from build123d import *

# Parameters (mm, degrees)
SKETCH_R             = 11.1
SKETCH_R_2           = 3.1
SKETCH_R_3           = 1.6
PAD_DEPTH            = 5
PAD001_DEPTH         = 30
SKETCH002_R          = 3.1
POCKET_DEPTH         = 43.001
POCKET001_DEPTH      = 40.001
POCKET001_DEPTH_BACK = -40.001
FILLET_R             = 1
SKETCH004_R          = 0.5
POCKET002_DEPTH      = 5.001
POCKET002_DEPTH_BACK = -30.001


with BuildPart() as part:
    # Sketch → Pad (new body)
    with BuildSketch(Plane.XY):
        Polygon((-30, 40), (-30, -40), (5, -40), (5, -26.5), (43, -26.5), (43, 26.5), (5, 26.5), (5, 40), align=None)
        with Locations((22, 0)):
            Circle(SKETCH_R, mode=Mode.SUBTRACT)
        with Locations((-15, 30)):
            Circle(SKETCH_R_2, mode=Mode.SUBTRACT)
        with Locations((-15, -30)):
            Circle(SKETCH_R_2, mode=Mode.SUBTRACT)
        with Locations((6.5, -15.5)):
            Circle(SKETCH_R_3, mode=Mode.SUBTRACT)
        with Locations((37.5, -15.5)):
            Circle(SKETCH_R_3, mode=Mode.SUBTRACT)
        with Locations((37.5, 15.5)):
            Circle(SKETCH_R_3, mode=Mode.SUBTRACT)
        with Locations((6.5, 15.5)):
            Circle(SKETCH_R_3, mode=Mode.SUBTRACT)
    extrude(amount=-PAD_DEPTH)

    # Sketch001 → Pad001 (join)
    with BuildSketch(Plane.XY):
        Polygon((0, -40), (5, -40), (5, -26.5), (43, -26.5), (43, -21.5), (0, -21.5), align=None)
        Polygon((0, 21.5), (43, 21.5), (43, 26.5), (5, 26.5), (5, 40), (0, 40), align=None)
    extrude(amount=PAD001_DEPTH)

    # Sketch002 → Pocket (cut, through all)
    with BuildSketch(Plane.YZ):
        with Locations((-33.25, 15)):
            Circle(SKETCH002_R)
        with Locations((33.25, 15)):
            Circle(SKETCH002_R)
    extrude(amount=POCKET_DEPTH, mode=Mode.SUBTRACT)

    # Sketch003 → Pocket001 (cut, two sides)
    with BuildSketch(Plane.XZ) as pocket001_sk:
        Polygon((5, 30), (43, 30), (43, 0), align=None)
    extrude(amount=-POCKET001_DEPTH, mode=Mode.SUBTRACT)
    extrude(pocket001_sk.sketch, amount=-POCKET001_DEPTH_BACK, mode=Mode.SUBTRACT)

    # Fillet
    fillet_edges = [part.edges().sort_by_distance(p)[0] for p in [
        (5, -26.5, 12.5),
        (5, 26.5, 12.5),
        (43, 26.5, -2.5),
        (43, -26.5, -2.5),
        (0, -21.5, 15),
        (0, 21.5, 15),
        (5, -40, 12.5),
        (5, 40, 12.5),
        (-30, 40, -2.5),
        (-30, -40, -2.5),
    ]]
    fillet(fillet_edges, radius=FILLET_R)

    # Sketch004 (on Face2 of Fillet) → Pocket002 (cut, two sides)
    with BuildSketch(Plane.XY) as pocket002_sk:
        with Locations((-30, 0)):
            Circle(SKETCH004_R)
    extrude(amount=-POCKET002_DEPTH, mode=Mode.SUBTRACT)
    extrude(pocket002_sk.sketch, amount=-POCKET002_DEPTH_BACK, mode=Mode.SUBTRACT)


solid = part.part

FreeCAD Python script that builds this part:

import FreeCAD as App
import Part
import Sketcher
Q = App.Units.Quantity


def edges_at(feature, points):
    """Names of the edges that pass closest to the given points."""
    edges = feature.Shape.Edges
    near = lambda p: min(range(len(edges)), key=lambda i: edges[i].distToShape(Part.Vertex(*p))[0])
    return sorted({f"Edge{near(p) + 1}" for p in points})


def add_polygon(sketch, points):
    """Adds a closed chain of lines whose ends are joined by coincident constraints."""
    first, n = sketch.GeometryCount, len(points)
    for a, b in zip(points, points[1:] + points[:1]):
        sketch.addGeometry(Part.LineSegment(App.Vector(*a, 0), App.Vector(*b, 0)), False)
    for i in range(n):
        sketch.addConstraint(Sketcher.Constraint("Coincident", first + i, 2, first + (i + 1) % n, 1))

doc = App.newDocument("Part")
params = doc.addObject("Spreadsheet::Sheet", "Params")
for row, (alias, value) in enumerate([
    ("sketch1_diameter", "6.2 mm"),
    ("sketch1_diameter2", "3.2 mm"),
    ("sketch1_diameter3", "22.2 mm"),
    ("sketch1_width", "35 mm"),
    ("sketch1_width2", "38 mm"),
    ("pad1_length", "5 mm"),
    ("sketch2_width", "5 mm"),
    ("sketch2_width2", "38 mm"),
    ("sketch2_height", "13.5 mm"),
    ("pad2_length", "30 mm"),
    ("sketch3_diameter", "6.2 mm"),
    ("sketch4_width", "38 mm"),
    ("sketch4_height", "30 mm"),
    ("fillet_radius", "1 mm"),
    ("sketch5_diameter", "1 mm"),
], start=1):
    params.set(f"A{row}", alias)
    params.set(f"B{row}", "=" + value)
    params.setAlias(f"B{row}", alias)

body = doc.addObject("PartDesign::Body", "Body")

sketch1 = body.newObject("Sketcher::SketchObject", "Sketch")
sketch1.AttachmentSupport = (doc.getObject("XY_Plane"), [""])
sketch1.MapMode = "FlatFace"
add_polygon(sketch1, [(-30, 40), (-30, -40), (5, -40), (5, -26.5), (43, -26.5), (43, 26.5), (5, 26.5), (5, 40)])
sketch1.addGeometry(Part.Circle(App.Vector(-15, -30, 0), App.Vector(0, 0, 1), 3.1), False)
sketch1.addGeometry(Part.Circle(App.Vector(6.5, -15.5, 0), App.Vector(0, 0, 1), 1.6), False)
sketch1.addGeometry(Part.Circle(App.Vector(37.5, -15.5, 0), App.Vector(0, 0, 1), 1.6), False)
sketch1.addGeometry(Part.Circle(App.Vector(6.5, 15.5, 0), App.Vector(0, 0, 1), 1.6), False)
sketch1.addGeometry(Part.Circle(App.Vector(-15, 30, 0), App.Vector(0, 0, 1), 3.1), False)
sketch1.addGeometry(Part.Circle(App.Vector(22, 0, 0), App.Vector(0, 0, 1), 11.1), False)
sketch1.addGeometry(Part.Circle(App.Vector(37.5, 15.5, 0), App.Vector(0, 0, 1), 1.6), False)
sketch1.addConstraint([
    Sketcher.Constraint("Vertical", 0),
    Sketcher.Constraint("Horizontal", 1),
    Sketcher.Constraint("Vertical", 2),
    Sketcher.Constraint("Horizontal", 3),
    Sketcher.Constraint("Vertical", 4),
    Sketcher.Constraint("Horizontal", 5),
    Sketcher.Constraint("Vertical", 6),
    Sketcher.Constraint("Horizontal", 7),
    Sketcher.Constraint("Equal", 9, 10),
    Sketcher.Constraint("Equal", 10, 11),
    Sketcher.Constraint("Equal", 8, 12),
    Sketcher.Constraint("Equal", 11, 14),
    Sketcher.Constraint("Symmetric", 9, 3, 11, 3, -1),
    Sketcher.Constraint("Symmetric", 8, 3, 12, 3, -1),
    Sketcher.Constraint("Symmetric", 10, 3, 14, 3, -1),
    Sketcher.Constraint("Symmetric", 2, 2, 5, 2, -1),
    Sketcher.Constraint("PointOnObject", 13, 3, -1),
    Sketcher.Constraint("Horizontal", 9, 3, 10, 3),
    Sketcher.Constraint("Equal", 2, 6),
    Sketcher.Constraint("Diameter", 8, Q("6.2 mm")),
    Sketcher.Constraint("Diameter", 9, Q("3.2 mm")),
    Sketcher.Constraint("Diameter", 13, Q("22.2 mm")),
    Sketcher.Constraint("DistanceX", 1, 1, 1, 2, Q("35 mm")),
    Sketcher.Constraint("DistanceX", 3, 1, 3, 2, Q("38 mm")),
    Sketcher.Constraint("DistanceY", 0, 2, 0, 1, Q("80 mm")),
    Sketcher.Constraint("DistanceY", 4, 1, 4, 2, Q("53 mm")),
    Sketcher.Constraint("DistanceX", 8, 3, -1, 1, Q("15 mm")),
    Sketcher.Constraint("DistanceY", 8, 3, -1, 1, Q("30 mm")),
    Sketcher.Constraint("DistanceX", -1, 1, 13, 3, Q("22 mm")),
    Sketcher.Constraint("DistanceX", 0, 2, -1, 1, Q("30 mm")),
    Sketcher.Constraint("DistanceX", 9, 3, 10, 3, Q("31 mm")),
    Sketcher.Constraint("DistanceY", 9, 3, 11, 3, Q("31 mm")),
    Sketcher.Constraint("DistanceX", -1, 1, 9, 3, Q("6.5 mm")),
])
sketch1.setExpression("Constraints[27]", "Params.sketch1_diameter")
sketch1.setExpression("Constraints[28]", "Params.sketch1_diameter2")
sketch1.setExpression("Constraints[29]", "Params.sketch1_diameter3")
sketch1.setExpression("Constraints[30]", "Params.sketch1_width")
sketch1.setExpression("Constraints[31]", "Params.sketch1_width2")
pad1 = body.newObject("PartDesign::Pad", "Pad")
pad1.Profile = sketch1
pad1.setExpression("Length", "Params.pad1_length")
pad1.Reversed = True

sketch2 = body.newObject("Sketcher::SketchObject", "Sketch001")
sketch2.AttachmentSupport = (doc.getObject("XY_Plane"), [""])
sketch2.MapMode = "FlatFace"
add_polygon(sketch2, [(0, -40), (5, -40), (5, -26), (43, -26), (43, -22), (0, -22)])
add_polygon(sketch2, [(0, 22), (43, 22), (43, 26), (5, 26), (5, 40), (0, 40)])
sketch2.addConstraint([
    Sketcher.Constraint("Horizontal", 0),
    Sketcher.Constraint("Vertical", 1),
    Sketcher.Constraint("Horizontal", 2),
    Sketcher.Constraint("Vertical", 3),
    Sketcher.Constraint("Horizontal", 4),
    Sketcher.Constraint("Vertical", 5),
    Sketcher.Constraint("Horizontal", 6),
    Sketcher.Constraint("Vertical", 7),
    Sketcher.Constraint("Horizontal", 8),
    Sketcher.Constraint("Vertical", 9),
    Sketcher.Constraint("Horizontal", 10),
    Sketcher.Constraint("Vertical", 11),
    Sketcher.Constraint("Symmetric", 5, 2, 10, 2, -1, 1),
    Sketcher.Constraint("Symmetric", 3, 2, 6, 2, -1),
    Sketcher.Constraint("Symmetric", 1, 2, 8, 2, -1),
    Sketcher.Constraint("PointOnObject", 4, 2, -2),
    Sketcher.Constraint("Equal", 10, 3),
    Sketcher.Constraint("DistanceX", 0, 1, 0, 2, Q("5 mm")),
    Sketcher.Constraint("DistanceX", 2, 1, 2, 2, Q("38 mm")),
    Sketcher.Constraint("DistanceY", 1, 1, 1, 2, Q("13.5 mm")),
    Sketcher.Constraint("DistanceY", 0, 2, -1, 1, Q("40 mm")),
])
sketch2.setExpression("Constraints[29]", "Params.sketch2_width")
sketch2.setExpression("Constraints[30]", "Params.sketch2_width2")
sketch2.setExpression("Constraints[31]", "Params.sketch2_height")
pad2 = body.newObject("PartDesign::Pad", "Pad001")
pad2.Profile = sketch2
pad2.setExpression("Length", "Params.pad2_length")

sketch3 = body.newObject("Sketcher::SketchObject", "Sketch002")
sketch3.AttachmentSupport = (doc.getObject("YZ_Plane"), [""])
sketch3.MapMode = "FlatFace"
sketch3.addGeometry([
    Part.Circle(App.Vector(-33.2, 15, 0), App.Vector(0, 0, 1), 3.1),
    Part.Circle(App.Vector(33.2, 15, 0), App.Vector(0, 0, 1), 3.1),
], False)
sketch3.addConstraint([
    Sketcher.Constraint("Equal", 0, 1),
    Sketcher.Constraint("Symmetric", 0, 3, 1, 3, -2),
    Sketcher.Constraint("Diameter", 0, Q("6.2 mm")),
    Sketcher.Constraint("DistanceY", -1, 1, 0, 3, Q("15 mm")),
    Sketcher.Constraint("DistanceX", 0, 3, 1, 3, Q("66.5 mm")),
])
sketch3.setExpression("Constraints[2]", "Params.sketch3_diameter")
pocket1 = body.newObject("PartDesign::Pocket", "Pocket")
pocket1.Profile = sketch3
pocket1.Type = "ThroughAll"
pocket1.Reversed = True

sketch4 = body.newObject("Sketcher::SketchObject", "Sketch003")
sketch4.AttachmentSupport = (doc.getObject("XZ_Plane"), [""])
sketch4.MapMode = "FlatFace"
add_polygon(sketch4, [(43, 30), (5, 30), (43, 0)])
sketch4.addConstraint([
    Sketcher.Constraint("Horizontal", 0),
    Sketcher.Constraint("Vertical", 2),
    Sketcher.Constraint("PointOnObject", 1, 2, -1),
    Sketcher.Constraint("DistanceX", 0, 2, 0, 1, Q("38 mm")),
    Sketcher.Constraint("DistanceY", 2, 1, 2, 2, Q("30 mm")),
    Sketcher.Constraint("DistanceX", -1, 1, 0, 2, Q("5 mm")),
])
sketch4.setExpression("Constraints[6]", "Params.sketch4_width")
sketch4.setExpression("Constraints[7]", "Params.sketch4_height")
pocket2 = body.newObject("PartDesign::Pocket", "Pocket001")
pocket2.Profile = sketch4
pocket2.Type = "ThroughAll"
pocket2.Midplane = True
doc.recompute()

fillet = body.newObject("PartDesign::Fillet", "Fillet")
fillet.Base = (pocket2, edges_at(pocket2, [
    (5, -26.5, 12.5),
    (5, 26.5, 12.5),
    (43, 26.5, -2.5),
    (43, -26.5, -2.5),
    (0, -21.5, 15),
    (0, 21.5, 15),
    (5, -40, 12.5),
    (5, 40, 12.5),
    (-30, 40, -2.5),
    (-30, -40, -2.5),
]))
fillet.setExpression("Radius", "Params.fillet_radius")

sketch5 = body.newObject("Sketcher::SketchObject", "Sketch004")
sketch5.AttachmentSupport = (doc.getObject("XY_Plane"), [""])
sketch5.MapMode = "FlatFace"
sketch5.addGeometry(Part.Circle(App.Vector(-30, 0, 0), App.Vector(0, 0, 1), 0.5), False)
sketch5.addConstraint([
    Sketcher.Constraint("PointOnObject", 0, 3, -1),
    Sketcher.Constraint("Diameter", 0, Q("1 mm")),
    Sketcher.Constraint("DistanceX", 0, 3, -1, 1, Q("30 mm")),
])
sketch5.setExpression("Constraints[1]", "Params.sketch5_diameter")
pocket3 = body.newObject("PartDesign::Pocket", "Pocket002")
pocket3.Profile = sketch5
pocket3.Type = "ThroughAll"
pocket3.Midplane = True

doc.recompute()
